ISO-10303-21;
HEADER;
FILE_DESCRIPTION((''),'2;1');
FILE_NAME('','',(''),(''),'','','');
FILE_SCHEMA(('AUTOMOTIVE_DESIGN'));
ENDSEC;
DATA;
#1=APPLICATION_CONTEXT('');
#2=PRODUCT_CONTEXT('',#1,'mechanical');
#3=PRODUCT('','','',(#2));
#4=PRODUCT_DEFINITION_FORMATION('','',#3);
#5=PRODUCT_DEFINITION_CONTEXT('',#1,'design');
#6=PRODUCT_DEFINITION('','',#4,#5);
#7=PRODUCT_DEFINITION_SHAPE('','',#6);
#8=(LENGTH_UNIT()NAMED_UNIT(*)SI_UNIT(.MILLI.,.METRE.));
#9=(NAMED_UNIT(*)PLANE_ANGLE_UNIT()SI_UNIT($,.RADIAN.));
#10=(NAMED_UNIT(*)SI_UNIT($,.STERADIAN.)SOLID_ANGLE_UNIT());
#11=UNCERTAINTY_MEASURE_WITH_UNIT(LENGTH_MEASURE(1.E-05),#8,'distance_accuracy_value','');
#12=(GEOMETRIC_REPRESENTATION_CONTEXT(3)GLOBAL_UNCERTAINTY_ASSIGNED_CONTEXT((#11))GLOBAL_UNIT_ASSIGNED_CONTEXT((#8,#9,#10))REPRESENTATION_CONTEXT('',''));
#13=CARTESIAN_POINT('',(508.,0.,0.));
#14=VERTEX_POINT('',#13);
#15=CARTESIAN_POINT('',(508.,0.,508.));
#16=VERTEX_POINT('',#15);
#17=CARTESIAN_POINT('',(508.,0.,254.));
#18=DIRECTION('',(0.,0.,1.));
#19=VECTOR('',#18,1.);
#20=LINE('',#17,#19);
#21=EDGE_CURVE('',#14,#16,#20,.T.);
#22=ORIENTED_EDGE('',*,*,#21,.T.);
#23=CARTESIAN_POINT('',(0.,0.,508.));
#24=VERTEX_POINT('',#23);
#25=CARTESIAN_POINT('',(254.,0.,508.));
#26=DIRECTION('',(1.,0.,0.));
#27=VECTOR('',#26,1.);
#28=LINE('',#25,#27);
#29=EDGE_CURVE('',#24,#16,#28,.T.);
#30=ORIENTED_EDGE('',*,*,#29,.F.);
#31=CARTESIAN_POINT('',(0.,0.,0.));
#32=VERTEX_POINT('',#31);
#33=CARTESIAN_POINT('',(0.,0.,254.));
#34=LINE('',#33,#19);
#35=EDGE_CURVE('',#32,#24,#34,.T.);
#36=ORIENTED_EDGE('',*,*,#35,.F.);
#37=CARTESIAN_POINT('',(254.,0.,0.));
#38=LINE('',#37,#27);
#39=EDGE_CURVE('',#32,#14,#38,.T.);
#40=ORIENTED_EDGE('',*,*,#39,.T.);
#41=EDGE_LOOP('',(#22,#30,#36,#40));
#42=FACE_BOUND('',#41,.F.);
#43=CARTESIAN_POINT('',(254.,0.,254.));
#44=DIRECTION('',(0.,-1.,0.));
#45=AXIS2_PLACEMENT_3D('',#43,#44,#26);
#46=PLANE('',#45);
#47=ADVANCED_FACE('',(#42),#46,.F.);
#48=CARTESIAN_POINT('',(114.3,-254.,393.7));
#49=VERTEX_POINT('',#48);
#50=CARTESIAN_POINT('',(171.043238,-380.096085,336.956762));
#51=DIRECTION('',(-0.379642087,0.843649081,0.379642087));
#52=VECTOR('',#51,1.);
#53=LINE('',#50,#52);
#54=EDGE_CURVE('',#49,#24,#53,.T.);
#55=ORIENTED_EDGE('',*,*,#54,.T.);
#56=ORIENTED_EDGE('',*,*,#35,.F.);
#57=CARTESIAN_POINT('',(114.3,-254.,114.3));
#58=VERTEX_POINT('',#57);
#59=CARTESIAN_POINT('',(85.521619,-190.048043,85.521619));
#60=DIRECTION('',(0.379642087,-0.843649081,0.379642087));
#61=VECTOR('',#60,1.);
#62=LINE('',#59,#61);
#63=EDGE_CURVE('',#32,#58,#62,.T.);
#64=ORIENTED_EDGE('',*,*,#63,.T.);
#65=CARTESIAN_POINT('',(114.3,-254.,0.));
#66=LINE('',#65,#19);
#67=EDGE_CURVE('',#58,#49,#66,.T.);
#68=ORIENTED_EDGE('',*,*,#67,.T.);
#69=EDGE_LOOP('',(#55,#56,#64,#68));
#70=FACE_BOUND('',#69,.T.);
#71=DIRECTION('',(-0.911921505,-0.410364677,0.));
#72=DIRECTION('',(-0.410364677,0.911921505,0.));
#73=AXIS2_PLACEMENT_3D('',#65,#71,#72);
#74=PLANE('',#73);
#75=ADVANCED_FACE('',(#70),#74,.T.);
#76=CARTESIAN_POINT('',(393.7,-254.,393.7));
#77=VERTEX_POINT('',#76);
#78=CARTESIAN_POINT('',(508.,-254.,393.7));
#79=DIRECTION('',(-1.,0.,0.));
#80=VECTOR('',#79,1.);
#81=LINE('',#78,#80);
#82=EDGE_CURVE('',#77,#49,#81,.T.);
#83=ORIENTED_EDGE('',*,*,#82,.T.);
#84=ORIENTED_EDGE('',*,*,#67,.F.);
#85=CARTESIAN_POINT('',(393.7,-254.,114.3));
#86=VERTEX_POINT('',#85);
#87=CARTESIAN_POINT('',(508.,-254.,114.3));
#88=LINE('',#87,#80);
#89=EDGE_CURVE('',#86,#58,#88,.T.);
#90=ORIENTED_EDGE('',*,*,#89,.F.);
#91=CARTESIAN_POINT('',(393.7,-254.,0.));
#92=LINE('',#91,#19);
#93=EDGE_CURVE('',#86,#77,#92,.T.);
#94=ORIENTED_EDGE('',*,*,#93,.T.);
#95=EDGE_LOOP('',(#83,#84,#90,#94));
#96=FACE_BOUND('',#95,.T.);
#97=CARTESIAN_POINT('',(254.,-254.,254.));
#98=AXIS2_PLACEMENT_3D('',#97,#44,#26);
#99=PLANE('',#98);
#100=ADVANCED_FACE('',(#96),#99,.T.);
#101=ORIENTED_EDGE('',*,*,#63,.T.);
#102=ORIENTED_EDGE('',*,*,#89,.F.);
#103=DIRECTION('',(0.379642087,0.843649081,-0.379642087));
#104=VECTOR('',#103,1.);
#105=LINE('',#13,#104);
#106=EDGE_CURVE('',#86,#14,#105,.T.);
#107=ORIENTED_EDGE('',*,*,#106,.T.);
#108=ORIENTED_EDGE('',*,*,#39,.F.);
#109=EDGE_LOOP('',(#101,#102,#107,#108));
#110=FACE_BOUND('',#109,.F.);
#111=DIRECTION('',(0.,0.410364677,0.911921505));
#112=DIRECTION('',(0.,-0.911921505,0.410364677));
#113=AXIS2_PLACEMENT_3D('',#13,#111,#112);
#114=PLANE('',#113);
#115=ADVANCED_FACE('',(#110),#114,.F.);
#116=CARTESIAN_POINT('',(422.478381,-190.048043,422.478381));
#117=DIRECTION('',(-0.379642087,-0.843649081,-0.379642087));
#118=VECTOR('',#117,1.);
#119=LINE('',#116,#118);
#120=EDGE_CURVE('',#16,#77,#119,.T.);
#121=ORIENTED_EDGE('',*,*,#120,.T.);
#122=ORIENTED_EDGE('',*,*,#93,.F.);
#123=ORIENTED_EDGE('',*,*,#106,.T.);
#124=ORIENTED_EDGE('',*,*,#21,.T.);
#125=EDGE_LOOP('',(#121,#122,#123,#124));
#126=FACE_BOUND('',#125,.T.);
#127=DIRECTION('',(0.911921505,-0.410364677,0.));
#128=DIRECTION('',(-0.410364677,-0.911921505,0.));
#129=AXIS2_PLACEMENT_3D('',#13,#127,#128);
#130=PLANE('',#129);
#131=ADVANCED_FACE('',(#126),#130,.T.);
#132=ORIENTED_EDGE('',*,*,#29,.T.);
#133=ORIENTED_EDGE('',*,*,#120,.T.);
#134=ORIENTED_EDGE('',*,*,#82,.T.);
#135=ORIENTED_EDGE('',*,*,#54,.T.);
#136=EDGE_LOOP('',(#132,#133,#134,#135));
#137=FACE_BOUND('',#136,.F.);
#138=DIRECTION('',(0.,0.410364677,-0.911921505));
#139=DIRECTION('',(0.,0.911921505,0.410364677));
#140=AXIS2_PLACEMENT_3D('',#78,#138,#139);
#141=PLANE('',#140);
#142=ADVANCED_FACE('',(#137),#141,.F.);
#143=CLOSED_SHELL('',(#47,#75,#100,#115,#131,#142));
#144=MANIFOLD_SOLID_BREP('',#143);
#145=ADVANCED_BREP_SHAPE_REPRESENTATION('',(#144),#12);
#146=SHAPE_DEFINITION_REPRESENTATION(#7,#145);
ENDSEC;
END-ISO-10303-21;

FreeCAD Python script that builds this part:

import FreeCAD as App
import Part
import Sketcher
from FreeCAD import Vector
Q = App.Units.Quantity

doc = App.newDocument("Part")
body = doc.addObject("PartDesign::Body", "Body")

# Sketch on XZ plane
sketch1 = body.newObject("Sketcher::SketchObject", "Sketch")
sketch1.AttachmentSupport = (doc.getObject("XZ_Plane"), [""])
sketch1.MapMode = "FlatFace"
sketch1.addGeometry([
    Part.LineSegment(Vector(0, 508, 0), Vector(0, 0, 0)),
    Part.LineSegment(Vector(0, 0, 0), Vector(508, 0, 0)),
    Part.LineSegment(Vector(508, 0, 0), Vector(508, 508, 0)),
    Part.LineSegment(Vector(508, 508, 0), Vector(0, 508, 0)),
], False)
sketch1.addConstraint([
    Sketcher.Constraint("Coincident", 0, 2, 1, 1),
    Sketcher.Constraint("Coincident", 1, 2, 2, 1),
    Sketcher.Constraint("Coincident", 2, 2, 3, 1),
    Sketcher.Constraint("Coincident", 3, 2, 0, 1),
    Sketcher.Constraint("Vertical", 0),
    Sketcher.Constraint("Horizontal", 1),
    Sketcher.Constraint("Vertical", 2),
    Sketcher.Constraint("Horizontal", 3),
    Sketcher.Constraint("Coincident", 0, 2, -1, 1),
    Sketcher.Constraint("Equal", 3, 0),
    Sketcher.Constraint("DistanceX", 1, 1, 1, 2, Q("20 in")),
])
pad1 = body.newObject("PartDesign::Pad", "Pad")
pad1.Profile = sketch1
pad1.Length = Q("10 in")

# Sketch on YZ plane
sketch2 = body.newObject("Sketcher::SketchObject", "Sketch001")
sketch2.AttachmentSupport = (doc.getObject("YZ_Plane"), [""])
sketch2.MapMode = "FlatFace"
sketch2.AttachmentOffset = App.Placement(Vector(0, 0, 20 * 25.4), App.Rotation())
sketch2.addGeometry([
    Part.LineSegment(Vector(-254, 508, 0), Vector(-254, 393.7, 0)),  # 0
    Part.LineSegment(Vector(-254, 393.7, 0), Vector(0, 508, 0)),  # 1
    Part.LineSegment(Vector(0, 508, 0), Vector(-254, 508, 0)),  # 2
    Part.LineSegment(Vector(0, 0, 0), Vector(-254, 114.3, 0)),  # 3
    Part.LineSegment(Vector(-254, 114.3, 0), Vector(-254, 0, 0)),  # 4
    Part.LineSegment(Vector(-254, 0, 0), Vector(0, 0, 0)),  # 5
], False)
sketch2.addConstraint([
    Sketcher.Constraint("Coincident", 0, 2, 1, 1),
    Sketcher.Constraint("Coincident", 1, 2, 2, 1),
    Sketcher.Constraint("Coincident", 2, 2, 0, 1),
    Sketcher.Constraint("Coincident", 3, 2, 4, 1),
    Sketcher.Constraint("Coincident", 4, 2, 5, 1),
    Sketcher.Constraint("Coincident", 5, 2, 3, 1),
    Sketcher.Constraint("Vertical", 0),
    Sketcher.Constraint("Horizontal", 2),
    Sketcher.Constraint("Vertical", 4),
    Sketcher.Constraint("Horizontal", 5),
    Sketcher.Constraint("Coincident", 5, 2, -1, 1),
    Sketcher.Constraint("PointOnObject", 1, 2, -2),
    Sketcher.Constraint("Vertical", 2, 2, 3, 2),
    Sketcher.Constraint("Equal", 0, 4),
    Sketcher.Constraint("DistanceX", 2, 2, 2, 1, Q("10 in")),
    Sketcher.Constraint("DistanceY", 0, 2, 0, 1, Q("4.5 in")),
    Sketcher.Constraint("DistanceY", -1, 1, 1, 2, Q("20 in")),
])
pocket1 = body.newObject("PartDesign::Pocket", "Pocket")
pocket1.Profile = sketch2
pocket1.Type = "ThroughAll"

# Sketch on XY plane
sketch3 = body.newObject("Sketcher::SketchObject", "Sketch002")
sketch3.AttachmentSupport = (doc.getObject("XY_Plane"), [""])
sketch3.MapMode = "FlatFace"
sketch3.addGeometry([
    Part.LineSegment(Vector(0, -254, 0), Vector(114.3, -254, 0)),  # 0
    Part.LineSegment(Vector(114.3, -254, 0), Vector(0, 0, 0)),  # 1
    Part.LineSegment(Vector(0, 0, 0), Vector(0, -254, 0)),  # 2
    Part.LineSegment(Vector(393.7, -254, 0), Vector(542.023063, -254, 0)),  # 3
    Part.LineSegment(Vector(542.023063, -254, 0), Vector(542.023063, 0, 0)),  # 4
    Part.LineSegment(Vector(542.023063, 0, 0), Vector(508, 0, 0)),  # 5
    Part.LineSegment(Vector(508, 0, 0), Vector(393.7, -254, 0)),  # 6
], False)
sketch3.addConstraint([
    Sketcher.Constraint("Coincident", 0, 2, 1, 1),
    Sketcher.Constraint("Coincident", 1, 2, 2, 1),
    Sketcher.Constraint("Coincident", 2, 2, 0, 1),
    Sketcher.Constraint("Coincident", 3, 2, 4, 1),
    Sketcher.Constraint("Coincident", 4, 2, 5, 1),
    Sketcher.Constraint("Coincident", 5, 2, 6, 1),
    Sketcher.Constraint("Coincident", 6, 2, 3, 1),
    Sketcher.Constraint("Horizontal", 0),
    Sketcher.Constraint("Vertical", 2),
    Sketcher.Constraint("Horizontal", 3),
    Sketcher.Constraint("Vertical", 4),
    Sketcher.Constraint("Horizontal", 5),
    Sketcher.Constraint("Coincident", 1, 2, -1, 1),
    Sketcher.Constraint("PointOnObject", 4, 2, -1),
    Sketcher.Constraint("Horizontal", 2, 2, 3, 2),
    Sketcher.Constraint("Equal", 1, 6),
    Sketcher.Constraint("DistanceY", 2, 2, 2, 1, Q("10 in")),
    Sketcher.Constraint("DistanceX", 0, 1, 0, 2, Q("4.5 in")),
    Sketcher.Constraint("DistanceX", -1, 1, 5, 2, Q("20 in")),
    Sketcher.Constraint("DistanceX", 3, 1, 3, 2, Q("148.323063 mm")),
])
pocket2 = body.newObject("PartDesign::Pocket", "Pocket001")
pocket2.Profile = sketch3
pocket2.Length = Q("20 in")
pocket2.Reversed = True

doc.recompute()
